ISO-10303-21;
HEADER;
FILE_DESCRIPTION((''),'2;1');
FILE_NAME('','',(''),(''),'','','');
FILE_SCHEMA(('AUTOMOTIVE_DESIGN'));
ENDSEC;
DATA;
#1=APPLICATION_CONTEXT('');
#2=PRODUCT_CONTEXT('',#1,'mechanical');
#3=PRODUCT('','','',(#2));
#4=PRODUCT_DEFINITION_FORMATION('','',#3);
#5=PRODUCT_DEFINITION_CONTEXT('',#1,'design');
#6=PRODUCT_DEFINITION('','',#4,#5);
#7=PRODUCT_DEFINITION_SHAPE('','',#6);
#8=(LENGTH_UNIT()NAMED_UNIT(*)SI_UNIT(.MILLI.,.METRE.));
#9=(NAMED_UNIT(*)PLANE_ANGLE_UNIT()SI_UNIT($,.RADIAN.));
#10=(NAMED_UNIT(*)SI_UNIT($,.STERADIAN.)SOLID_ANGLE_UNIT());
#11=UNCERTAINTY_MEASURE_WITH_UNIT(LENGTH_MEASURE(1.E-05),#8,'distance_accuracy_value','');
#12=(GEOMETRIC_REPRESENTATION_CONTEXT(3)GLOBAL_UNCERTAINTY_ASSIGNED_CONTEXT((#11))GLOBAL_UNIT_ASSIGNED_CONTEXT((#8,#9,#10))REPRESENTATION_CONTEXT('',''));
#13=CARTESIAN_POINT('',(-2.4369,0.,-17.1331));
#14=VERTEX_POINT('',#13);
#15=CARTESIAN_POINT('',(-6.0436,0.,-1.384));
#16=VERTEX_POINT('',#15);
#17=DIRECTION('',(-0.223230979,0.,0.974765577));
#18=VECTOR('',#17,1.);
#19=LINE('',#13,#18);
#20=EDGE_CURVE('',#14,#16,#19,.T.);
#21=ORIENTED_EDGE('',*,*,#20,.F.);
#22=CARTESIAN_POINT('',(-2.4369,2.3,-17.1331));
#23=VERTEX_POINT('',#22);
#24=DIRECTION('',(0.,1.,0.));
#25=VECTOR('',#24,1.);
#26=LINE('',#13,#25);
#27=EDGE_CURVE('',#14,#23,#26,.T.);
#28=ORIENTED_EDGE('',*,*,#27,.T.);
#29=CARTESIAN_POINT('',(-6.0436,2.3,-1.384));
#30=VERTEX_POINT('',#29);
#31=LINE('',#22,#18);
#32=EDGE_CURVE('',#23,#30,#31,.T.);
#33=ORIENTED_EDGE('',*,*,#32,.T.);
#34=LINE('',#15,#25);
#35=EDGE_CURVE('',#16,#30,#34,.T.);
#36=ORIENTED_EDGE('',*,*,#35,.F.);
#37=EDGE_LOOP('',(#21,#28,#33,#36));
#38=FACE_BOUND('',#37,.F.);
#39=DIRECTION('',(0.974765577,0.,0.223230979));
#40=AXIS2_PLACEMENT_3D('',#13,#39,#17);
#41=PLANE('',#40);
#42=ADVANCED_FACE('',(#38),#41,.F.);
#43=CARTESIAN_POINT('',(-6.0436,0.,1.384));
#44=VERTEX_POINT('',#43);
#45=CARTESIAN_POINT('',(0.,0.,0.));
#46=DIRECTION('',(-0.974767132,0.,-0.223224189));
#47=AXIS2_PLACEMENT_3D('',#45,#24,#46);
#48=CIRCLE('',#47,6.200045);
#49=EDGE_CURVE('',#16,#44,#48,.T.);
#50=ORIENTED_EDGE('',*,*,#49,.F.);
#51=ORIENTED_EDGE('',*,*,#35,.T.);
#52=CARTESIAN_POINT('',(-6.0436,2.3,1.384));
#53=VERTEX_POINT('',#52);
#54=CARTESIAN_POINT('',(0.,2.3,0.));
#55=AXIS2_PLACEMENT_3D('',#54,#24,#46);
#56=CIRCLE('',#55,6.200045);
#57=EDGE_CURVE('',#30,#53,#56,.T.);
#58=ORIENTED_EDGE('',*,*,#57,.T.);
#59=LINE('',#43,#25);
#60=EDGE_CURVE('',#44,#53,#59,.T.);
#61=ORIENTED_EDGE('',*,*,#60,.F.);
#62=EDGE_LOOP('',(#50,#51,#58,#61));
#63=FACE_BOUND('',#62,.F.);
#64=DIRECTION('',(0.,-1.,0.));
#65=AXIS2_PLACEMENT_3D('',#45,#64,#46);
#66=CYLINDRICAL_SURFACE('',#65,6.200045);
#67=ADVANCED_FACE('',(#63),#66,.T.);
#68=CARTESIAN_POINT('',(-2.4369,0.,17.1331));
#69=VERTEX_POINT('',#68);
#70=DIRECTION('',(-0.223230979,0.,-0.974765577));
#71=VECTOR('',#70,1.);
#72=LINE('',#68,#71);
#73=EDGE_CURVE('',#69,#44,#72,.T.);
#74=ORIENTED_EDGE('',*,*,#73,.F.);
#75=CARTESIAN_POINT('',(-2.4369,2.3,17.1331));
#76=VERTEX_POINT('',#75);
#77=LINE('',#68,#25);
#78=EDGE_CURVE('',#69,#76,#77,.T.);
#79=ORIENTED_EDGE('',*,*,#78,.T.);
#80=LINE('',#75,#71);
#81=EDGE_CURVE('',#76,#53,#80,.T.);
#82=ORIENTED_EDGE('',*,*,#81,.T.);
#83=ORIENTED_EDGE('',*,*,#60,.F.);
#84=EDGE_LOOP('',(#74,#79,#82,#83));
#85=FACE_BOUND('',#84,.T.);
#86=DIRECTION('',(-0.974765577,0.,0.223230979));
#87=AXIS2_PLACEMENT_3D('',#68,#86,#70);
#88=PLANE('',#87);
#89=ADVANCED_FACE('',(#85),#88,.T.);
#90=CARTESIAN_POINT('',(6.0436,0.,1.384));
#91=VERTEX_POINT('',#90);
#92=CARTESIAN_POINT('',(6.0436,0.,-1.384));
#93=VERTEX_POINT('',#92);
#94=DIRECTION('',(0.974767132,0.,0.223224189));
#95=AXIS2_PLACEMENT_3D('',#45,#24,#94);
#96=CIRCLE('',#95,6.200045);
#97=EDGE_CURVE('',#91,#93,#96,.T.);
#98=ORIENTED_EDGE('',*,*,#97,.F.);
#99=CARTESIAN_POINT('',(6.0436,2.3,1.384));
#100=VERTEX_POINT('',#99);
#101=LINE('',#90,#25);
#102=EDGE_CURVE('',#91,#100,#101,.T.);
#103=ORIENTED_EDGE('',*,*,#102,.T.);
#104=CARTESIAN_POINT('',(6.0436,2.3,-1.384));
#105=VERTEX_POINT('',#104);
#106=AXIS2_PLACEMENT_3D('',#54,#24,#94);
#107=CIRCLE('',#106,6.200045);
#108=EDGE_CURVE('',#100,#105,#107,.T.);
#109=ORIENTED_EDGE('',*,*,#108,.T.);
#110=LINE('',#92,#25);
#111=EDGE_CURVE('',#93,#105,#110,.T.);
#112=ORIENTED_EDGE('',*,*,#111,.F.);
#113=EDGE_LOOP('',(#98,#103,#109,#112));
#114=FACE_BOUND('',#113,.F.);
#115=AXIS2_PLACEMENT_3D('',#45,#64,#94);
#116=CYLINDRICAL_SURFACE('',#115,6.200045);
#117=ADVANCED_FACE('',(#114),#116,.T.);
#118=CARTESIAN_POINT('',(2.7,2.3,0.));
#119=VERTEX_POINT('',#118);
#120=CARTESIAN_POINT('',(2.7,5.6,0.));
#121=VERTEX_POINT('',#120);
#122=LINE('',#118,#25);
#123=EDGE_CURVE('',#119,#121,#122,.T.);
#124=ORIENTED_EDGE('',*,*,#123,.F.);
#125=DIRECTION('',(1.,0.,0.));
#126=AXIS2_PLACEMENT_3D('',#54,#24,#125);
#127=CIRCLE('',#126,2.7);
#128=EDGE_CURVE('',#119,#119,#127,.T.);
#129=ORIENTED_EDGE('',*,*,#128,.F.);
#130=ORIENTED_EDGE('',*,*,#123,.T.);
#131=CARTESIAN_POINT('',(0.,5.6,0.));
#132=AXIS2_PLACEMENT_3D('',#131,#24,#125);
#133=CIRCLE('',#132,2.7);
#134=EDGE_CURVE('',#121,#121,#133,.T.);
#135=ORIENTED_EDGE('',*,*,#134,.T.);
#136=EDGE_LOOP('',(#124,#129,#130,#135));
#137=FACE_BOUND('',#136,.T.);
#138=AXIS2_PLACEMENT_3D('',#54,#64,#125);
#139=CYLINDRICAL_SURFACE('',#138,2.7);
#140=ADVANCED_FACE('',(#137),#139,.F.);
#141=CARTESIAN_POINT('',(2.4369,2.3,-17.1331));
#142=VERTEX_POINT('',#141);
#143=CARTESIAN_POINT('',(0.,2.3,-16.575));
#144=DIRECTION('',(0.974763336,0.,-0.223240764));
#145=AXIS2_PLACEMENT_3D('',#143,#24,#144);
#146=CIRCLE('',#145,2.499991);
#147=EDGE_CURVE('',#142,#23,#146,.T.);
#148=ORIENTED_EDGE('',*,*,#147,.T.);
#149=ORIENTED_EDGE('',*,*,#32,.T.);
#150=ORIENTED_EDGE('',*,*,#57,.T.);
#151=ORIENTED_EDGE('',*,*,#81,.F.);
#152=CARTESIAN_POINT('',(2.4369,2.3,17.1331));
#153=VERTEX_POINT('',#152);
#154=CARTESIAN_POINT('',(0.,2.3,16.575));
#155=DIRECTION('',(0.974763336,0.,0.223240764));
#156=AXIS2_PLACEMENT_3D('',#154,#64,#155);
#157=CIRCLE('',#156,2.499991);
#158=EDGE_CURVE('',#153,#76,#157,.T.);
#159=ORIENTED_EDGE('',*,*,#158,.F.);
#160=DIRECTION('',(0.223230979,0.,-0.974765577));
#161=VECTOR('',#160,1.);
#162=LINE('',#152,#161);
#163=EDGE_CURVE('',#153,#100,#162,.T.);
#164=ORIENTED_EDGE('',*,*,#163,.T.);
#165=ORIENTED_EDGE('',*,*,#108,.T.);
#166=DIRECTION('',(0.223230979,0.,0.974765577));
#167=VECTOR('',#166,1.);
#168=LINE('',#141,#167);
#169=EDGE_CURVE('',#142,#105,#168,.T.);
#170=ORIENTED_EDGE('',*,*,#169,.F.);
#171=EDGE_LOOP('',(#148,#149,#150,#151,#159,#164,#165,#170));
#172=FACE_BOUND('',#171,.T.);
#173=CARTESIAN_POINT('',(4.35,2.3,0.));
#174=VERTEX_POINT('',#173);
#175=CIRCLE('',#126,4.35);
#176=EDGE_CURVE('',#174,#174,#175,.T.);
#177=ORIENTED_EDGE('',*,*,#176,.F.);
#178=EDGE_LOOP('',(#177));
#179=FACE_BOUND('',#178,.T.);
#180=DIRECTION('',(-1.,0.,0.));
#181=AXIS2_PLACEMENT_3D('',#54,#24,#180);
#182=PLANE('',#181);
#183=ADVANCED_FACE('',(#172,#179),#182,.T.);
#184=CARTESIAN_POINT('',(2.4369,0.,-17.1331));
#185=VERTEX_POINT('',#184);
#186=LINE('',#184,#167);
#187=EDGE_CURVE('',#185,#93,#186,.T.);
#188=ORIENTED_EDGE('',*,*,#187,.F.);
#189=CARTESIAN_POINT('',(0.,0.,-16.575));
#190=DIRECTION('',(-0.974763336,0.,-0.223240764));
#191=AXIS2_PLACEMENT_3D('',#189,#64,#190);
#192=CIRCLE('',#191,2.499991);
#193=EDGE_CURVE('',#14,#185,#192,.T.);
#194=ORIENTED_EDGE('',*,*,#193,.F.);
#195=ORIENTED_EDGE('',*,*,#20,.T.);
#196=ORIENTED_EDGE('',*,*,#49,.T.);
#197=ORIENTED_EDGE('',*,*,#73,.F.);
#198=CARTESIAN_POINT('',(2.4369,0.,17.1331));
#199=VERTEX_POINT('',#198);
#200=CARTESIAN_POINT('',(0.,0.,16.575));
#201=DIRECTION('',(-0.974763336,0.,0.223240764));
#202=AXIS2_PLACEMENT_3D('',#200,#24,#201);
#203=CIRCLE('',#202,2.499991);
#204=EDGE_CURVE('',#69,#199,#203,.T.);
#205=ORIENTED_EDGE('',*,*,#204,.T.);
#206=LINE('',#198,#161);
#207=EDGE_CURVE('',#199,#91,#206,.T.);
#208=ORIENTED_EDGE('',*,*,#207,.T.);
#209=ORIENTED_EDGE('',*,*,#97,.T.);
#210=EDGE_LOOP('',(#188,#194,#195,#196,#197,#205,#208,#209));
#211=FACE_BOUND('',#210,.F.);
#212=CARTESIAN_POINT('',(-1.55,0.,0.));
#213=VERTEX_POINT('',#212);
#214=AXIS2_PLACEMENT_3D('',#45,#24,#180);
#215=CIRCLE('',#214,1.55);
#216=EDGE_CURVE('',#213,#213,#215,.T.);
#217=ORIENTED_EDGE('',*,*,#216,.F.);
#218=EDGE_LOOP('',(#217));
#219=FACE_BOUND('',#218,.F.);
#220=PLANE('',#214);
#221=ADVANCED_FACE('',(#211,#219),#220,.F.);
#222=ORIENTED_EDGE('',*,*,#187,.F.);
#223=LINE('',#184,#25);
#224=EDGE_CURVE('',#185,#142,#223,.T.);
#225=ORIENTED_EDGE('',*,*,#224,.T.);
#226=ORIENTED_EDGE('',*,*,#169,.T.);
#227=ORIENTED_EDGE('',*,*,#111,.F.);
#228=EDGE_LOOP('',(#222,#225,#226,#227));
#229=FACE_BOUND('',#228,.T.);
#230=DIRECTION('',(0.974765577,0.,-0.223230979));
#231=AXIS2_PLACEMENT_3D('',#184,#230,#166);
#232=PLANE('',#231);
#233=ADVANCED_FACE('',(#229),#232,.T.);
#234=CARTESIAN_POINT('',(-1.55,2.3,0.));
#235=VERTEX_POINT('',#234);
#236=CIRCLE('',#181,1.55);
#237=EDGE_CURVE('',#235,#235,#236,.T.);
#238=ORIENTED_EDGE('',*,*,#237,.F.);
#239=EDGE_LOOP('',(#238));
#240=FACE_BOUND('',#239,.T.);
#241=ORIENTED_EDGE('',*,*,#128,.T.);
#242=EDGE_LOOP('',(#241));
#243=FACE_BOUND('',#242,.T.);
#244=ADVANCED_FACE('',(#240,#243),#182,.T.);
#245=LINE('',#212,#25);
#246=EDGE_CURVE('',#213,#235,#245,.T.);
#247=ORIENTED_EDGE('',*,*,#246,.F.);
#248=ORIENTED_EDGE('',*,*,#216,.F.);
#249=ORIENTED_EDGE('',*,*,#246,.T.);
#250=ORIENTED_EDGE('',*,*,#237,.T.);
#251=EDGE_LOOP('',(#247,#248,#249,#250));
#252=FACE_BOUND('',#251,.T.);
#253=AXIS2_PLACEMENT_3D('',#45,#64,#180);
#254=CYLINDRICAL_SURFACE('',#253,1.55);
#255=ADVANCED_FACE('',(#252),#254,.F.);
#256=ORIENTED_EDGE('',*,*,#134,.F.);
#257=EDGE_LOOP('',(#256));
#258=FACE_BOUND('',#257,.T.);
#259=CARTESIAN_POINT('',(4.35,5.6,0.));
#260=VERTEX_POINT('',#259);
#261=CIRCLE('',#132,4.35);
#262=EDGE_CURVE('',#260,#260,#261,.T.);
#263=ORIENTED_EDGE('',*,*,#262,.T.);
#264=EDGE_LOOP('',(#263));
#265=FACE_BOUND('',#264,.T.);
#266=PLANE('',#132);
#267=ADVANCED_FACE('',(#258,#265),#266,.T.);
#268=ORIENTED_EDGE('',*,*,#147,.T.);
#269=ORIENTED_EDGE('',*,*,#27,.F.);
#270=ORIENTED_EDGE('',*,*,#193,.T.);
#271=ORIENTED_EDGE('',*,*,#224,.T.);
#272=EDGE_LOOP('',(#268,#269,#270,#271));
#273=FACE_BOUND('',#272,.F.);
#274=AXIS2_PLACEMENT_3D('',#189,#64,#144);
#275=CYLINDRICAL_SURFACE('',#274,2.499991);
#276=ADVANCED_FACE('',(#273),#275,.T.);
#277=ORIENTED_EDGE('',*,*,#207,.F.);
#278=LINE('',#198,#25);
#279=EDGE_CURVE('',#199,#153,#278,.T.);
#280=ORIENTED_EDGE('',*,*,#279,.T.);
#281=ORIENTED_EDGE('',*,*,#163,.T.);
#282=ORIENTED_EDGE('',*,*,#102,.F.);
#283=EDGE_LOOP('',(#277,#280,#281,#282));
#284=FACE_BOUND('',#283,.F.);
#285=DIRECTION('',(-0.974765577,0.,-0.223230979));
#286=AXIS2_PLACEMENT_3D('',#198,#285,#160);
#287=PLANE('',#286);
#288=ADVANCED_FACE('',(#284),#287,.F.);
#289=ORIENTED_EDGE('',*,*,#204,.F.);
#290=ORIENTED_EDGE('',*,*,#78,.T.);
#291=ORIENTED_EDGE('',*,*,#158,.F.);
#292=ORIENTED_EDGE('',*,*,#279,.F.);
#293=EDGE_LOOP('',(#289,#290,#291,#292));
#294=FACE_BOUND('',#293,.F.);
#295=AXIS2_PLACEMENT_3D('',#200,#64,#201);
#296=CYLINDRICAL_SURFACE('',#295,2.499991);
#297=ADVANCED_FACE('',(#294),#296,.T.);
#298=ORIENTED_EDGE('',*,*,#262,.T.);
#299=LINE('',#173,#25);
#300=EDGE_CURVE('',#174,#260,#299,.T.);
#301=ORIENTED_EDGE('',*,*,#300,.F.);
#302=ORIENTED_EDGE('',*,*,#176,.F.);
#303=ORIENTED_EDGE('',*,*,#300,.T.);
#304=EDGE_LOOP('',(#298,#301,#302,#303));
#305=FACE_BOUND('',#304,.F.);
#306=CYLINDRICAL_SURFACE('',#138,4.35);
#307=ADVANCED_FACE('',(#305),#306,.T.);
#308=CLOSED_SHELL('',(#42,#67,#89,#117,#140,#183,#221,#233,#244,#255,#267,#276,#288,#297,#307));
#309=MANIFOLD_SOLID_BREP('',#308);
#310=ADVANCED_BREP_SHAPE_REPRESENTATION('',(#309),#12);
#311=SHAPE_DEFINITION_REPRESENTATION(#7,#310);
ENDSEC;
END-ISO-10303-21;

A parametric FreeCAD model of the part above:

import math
import FreeCAD as App
import Part
import Sketcher

V = App.Vector
Q = App.Units.Quantity

doc = App.newDocument("Part")
body = doc.addObject("PartDesign::Body", "Body")

sketch1 = body.newObject("Sketcher::SketchObject", "Sketch")
sketch1.AttachmentSupport = (doc.getObject("XZ_Plane"), [""])
sketch1.MapMode = "FlatFace"
sketch1.addGeometry(Part.LineSegment(V(-6, 1.4, 0), V(-2.4, 17.1, 0)), False)
sketch1.addGeometry(Part.ArcOfCircle(Part.Circle(V(0, 16.6, 0), V(0, 0, 1), 2.5), math.radians(13), math.radians(167)), False)
sketch1.addGeometry(Part.LineSegment(V(2.4, 17.1, 0), V(6, 1.4, 0)), False)
sketch1.addGeometry(Part.ArcOfCircle(Part.Circle(V(0, 0, 0), V(0, 0, 1), 6.2), math.radians(-13), math.radians(13)), False)
sketch1.addGeometry(Part.LineSegment(V(6, -1.4, 0), V(2.4, -17.1, 0)), False)
sketch1.addGeometry(Part.ArcOfCircle(Part.Circle(V(0, -16.6, 0), V(0, 0, 1), 2.5), math.radians(-167), math.radians(-13)), False)
sketch1.addGeometry(Part.LineSegment(V(-2.4, -17.1, 0), V(-6, -1.4, 0)), False)
sketch1.addGeometry(Part.ArcOfCircle(Part.Circle(V(0, 0, 0), V(0, 0, 1), 6.2), math.radians(167), math.radians(193)), False)
sketch1.addGeometry(Part.Circle(V(0, 0, 0), V(0, 0, 1), 1.6), False)
sketch1.addConstraint(Sketcher.Constraint("Tangent", 0, 2, 1, 2))
sketch1.addConstraint(Sketcher.Constraint("Tangent", 1, 1, 2, 1))
sketch1.addConstraint(Sketcher.Constraint("Tangent", 2, 2, 3, 2))
sketch1.addConstraint(Sketcher.Constraint("Tangent", 3, 1, 4, 1))
sketch1.addConstraint(Sketcher.Constraint("Tangent", 4, 2, 5, 2))
sketch1.addConstraint(Sketcher.Constraint("Tangent", 5, 1, 6, 1))
sketch1.addConstraint(Sketcher.Constraint("Tangent", 6, 2, 7, 2))
sketch1.addConstraint(Sketcher.Constraint("Tangent", 7, 1, 0, 1))
sketch1.addConstraint(Sketcher.Constraint("Coincident", 3, 3, -1, 1))
sketch1.addConstraint(Sketcher.Constraint("Coincident", 7, 3, -1, 1))
sketch1.addConstraint(Sketcher.Constraint("Coincident", 8, 3, -1, 1))
sketch1.addConstraint(Sketcher.Constraint("Equal", 1, 5))
sketch1.addConstraint(Sketcher.Constraint("Equal", 3, 7))
sketch1.addConstraint(Sketcher.Constraint("Symmetric", 1, 3, 5, 3, -1, 1))
sketch1.addConstraint(Sketcher.Constraint("PointOnObject", 1, 3, -2))
sketch1.addConstraint(Sketcher.Constraint("Diameter", 8, Q("3.1 mm")))
sketch1.addConstraint(Sketcher.Constraint("Radius", 1, Q("2.5 mm")))
sketch1.addConstraint(Sketcher.Constraint("Radius", 3, Q("6.2 mm")))
sketch1.addConstraint(Sketcher.Constraint("Angle", 0, Q("77.1011 deg")))
pad1 = body.newObject("PartDesign::Pad", "Pad")
pad1.Profile = sketch1
pad1.Length = 2.3
pad1.Reversed = True

sketch2 = body.newObject("Sketcher::SketchObject", "Sketch001")
sketch2.AttachmentSupport = (doc.getObject("XZ_Plane"), [""])
sketch2.MapMode = "FlatFace"
sketch2.AttachmentOffset = App.Placement(V(0, 0, -2.3), App.Rotation())
sketch2.addGeometry(Part.Circle(V(0, 0, 0), V(0, 0, 1), 4.3), False)
sketch2.addGeometry(Part.Circle(V(0, 0, 0), V(0, 0, 1), 2.7), False)
sketch2.addConstraint(Sketcher.Constraint("Coincident", 0, 3, -1, 1))
sketch2.addConstraint(Sketcher.Constraint("Coincident", 1, 3, -1, 1))
sketch2.addConstraint(Sketcher.Constraint("Diameter", 0, Q("8.7 mm")))
sketch2.addConstraint(Sketcher.Constraint("Diameter", 1, Q("5.4 mm")))
pad2 = body.newObject("PartDesign::Pad", "Pad001")
pad2.Profile = sketch2
pad2.Length = 3.3
pad2.Reversed = True

doc.recompute()
